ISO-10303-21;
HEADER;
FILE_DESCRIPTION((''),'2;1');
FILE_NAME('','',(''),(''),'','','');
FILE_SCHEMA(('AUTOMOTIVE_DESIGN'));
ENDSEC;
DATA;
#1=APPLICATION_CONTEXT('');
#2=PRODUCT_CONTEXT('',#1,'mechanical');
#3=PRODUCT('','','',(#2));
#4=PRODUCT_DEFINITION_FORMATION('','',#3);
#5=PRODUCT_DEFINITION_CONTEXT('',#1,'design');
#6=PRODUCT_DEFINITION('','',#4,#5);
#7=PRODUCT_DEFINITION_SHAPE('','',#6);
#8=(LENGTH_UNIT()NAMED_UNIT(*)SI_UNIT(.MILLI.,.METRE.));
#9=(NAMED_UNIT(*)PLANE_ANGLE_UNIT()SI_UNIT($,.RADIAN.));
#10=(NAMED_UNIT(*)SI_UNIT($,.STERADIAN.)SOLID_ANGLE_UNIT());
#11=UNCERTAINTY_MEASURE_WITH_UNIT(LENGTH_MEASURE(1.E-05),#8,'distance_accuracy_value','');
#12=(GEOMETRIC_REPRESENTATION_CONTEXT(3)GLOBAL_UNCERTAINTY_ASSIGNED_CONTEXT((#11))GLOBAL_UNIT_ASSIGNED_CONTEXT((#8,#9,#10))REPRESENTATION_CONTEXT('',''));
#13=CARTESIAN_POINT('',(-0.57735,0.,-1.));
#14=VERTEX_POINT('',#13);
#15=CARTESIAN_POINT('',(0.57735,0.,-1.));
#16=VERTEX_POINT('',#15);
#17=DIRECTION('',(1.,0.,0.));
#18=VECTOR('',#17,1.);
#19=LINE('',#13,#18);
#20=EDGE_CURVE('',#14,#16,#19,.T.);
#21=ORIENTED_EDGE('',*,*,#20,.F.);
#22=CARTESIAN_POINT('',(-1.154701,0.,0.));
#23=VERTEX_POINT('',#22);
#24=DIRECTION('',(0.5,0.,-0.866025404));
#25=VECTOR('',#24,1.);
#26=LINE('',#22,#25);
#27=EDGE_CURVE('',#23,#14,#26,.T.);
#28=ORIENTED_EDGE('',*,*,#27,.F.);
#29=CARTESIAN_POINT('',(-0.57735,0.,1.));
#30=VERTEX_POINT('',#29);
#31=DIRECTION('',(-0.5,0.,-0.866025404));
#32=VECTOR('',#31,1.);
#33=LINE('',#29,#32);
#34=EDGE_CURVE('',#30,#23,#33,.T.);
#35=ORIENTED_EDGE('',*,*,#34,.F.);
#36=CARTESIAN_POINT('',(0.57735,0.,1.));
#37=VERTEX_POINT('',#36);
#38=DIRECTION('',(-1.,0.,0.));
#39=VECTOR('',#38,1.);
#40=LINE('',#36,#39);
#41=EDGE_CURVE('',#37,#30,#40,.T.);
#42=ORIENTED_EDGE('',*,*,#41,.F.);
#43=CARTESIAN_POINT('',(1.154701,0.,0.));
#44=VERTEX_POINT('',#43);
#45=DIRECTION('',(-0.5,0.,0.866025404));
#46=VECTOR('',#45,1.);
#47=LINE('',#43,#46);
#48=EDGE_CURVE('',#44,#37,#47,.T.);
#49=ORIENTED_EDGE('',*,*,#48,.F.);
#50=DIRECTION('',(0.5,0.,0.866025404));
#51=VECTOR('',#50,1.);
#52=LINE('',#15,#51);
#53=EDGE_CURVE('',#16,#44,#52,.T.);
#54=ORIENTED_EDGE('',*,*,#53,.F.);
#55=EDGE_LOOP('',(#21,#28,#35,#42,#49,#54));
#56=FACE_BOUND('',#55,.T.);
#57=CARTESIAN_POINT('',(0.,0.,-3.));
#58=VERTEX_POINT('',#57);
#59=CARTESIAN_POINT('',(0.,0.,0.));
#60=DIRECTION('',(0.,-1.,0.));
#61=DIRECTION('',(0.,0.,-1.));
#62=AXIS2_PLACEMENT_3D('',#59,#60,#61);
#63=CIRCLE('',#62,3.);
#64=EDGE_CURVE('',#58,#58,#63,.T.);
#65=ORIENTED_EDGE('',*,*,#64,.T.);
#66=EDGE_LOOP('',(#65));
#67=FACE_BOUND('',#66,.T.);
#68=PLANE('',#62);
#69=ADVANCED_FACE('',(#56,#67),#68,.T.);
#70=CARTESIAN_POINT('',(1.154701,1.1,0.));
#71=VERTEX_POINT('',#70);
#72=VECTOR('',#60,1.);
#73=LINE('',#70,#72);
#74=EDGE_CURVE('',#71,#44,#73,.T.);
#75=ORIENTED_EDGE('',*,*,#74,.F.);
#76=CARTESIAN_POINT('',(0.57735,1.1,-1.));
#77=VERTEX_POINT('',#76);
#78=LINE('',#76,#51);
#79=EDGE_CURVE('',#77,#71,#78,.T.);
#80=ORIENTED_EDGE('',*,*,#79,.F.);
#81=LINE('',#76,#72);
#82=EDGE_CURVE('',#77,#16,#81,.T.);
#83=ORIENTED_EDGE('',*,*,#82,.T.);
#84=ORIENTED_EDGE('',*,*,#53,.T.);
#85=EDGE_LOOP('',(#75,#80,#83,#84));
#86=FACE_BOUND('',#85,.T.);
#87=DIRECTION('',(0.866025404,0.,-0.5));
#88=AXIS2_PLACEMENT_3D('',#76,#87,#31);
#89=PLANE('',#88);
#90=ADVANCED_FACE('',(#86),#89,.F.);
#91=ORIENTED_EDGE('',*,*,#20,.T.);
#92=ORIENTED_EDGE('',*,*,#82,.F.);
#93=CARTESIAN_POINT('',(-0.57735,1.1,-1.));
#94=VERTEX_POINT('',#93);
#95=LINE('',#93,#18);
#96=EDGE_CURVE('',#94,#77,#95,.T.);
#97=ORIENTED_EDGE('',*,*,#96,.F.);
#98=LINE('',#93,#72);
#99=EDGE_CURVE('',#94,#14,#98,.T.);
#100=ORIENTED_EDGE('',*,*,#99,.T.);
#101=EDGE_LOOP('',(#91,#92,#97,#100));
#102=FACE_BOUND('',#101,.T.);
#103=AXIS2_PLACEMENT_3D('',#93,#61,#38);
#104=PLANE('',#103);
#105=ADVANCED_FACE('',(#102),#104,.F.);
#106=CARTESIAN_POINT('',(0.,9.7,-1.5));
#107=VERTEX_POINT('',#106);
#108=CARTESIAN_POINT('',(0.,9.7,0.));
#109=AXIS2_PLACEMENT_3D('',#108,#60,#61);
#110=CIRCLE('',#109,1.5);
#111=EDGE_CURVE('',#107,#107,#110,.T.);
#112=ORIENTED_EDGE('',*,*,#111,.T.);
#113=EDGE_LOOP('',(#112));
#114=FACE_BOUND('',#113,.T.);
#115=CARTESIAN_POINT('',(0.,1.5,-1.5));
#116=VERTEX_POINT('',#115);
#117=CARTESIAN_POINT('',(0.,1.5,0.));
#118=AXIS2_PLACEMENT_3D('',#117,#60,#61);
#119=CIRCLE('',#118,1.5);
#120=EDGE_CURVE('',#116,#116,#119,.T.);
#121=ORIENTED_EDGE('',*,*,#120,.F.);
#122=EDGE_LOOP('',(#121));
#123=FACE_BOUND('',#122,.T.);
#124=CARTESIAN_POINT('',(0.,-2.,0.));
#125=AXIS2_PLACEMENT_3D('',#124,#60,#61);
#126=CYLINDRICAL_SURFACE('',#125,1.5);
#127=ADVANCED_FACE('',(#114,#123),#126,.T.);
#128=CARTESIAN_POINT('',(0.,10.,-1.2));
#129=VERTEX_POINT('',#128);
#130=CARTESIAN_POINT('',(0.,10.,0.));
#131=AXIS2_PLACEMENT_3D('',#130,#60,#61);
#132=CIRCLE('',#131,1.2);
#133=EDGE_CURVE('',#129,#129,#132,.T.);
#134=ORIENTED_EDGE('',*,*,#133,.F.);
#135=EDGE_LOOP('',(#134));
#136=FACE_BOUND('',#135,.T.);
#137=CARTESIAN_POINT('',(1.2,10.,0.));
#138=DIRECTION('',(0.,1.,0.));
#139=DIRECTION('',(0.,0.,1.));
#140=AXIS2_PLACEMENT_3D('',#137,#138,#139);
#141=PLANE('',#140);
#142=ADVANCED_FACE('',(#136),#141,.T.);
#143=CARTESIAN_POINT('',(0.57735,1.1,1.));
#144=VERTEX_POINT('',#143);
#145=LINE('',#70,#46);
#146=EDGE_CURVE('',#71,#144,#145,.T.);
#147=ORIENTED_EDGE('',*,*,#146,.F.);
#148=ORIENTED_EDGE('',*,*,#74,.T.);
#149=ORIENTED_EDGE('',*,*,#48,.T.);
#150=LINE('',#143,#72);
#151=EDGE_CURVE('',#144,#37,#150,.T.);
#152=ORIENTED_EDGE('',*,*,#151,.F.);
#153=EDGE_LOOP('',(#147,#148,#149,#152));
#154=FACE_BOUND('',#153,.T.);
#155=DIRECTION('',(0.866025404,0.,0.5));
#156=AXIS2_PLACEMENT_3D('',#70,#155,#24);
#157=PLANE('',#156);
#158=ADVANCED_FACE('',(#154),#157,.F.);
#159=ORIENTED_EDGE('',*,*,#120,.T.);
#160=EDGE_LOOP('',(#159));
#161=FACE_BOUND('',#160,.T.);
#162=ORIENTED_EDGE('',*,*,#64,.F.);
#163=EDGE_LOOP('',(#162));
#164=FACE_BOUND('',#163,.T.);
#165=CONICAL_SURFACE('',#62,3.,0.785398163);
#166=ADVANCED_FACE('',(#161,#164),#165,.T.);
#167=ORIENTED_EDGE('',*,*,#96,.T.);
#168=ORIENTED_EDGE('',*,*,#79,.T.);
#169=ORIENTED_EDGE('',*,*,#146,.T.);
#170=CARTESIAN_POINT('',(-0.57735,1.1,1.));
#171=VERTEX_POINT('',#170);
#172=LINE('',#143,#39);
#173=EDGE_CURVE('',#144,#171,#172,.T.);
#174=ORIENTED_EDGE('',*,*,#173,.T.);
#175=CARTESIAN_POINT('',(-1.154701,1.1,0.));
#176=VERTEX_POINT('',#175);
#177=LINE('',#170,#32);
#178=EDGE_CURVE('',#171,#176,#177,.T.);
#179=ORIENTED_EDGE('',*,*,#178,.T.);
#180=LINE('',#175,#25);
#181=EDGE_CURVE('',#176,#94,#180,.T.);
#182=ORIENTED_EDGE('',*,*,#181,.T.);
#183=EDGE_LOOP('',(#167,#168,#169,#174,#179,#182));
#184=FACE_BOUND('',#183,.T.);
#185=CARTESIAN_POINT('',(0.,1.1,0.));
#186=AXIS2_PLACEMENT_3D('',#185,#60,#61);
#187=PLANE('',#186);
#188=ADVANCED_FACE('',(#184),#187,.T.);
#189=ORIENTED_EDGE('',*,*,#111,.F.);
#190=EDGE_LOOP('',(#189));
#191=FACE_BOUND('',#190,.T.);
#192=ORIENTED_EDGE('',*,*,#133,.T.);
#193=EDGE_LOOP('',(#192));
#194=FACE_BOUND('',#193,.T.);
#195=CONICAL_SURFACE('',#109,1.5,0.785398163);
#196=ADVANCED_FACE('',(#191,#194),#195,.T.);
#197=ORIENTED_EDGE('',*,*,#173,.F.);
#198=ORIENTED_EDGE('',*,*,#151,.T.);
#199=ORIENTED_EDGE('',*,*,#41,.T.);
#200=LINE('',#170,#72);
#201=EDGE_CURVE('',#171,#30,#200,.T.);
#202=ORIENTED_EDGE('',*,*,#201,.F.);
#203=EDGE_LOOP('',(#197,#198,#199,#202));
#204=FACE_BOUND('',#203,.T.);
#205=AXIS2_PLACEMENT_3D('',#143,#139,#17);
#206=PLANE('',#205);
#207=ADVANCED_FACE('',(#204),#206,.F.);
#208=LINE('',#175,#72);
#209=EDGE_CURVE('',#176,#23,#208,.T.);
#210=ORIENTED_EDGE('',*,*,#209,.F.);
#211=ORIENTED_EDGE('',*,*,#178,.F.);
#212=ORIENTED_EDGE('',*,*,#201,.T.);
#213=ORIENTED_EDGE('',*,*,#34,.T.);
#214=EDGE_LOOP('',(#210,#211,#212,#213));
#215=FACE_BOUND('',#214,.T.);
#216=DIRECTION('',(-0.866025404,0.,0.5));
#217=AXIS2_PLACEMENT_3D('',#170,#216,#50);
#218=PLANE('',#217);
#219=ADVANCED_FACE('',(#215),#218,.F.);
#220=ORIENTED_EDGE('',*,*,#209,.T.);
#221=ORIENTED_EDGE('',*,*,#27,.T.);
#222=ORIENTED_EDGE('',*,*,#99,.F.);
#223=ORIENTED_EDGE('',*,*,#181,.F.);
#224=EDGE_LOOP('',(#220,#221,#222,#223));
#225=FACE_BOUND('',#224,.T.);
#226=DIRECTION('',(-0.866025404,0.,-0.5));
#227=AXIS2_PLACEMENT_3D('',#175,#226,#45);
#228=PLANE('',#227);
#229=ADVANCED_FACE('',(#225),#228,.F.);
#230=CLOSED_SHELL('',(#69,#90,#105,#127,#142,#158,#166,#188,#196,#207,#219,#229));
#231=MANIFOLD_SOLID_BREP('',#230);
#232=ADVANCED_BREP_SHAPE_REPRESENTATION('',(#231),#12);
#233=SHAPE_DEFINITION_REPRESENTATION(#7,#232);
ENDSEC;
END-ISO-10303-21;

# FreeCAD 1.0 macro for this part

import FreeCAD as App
import Part
import Sketcher
from FreeCAD import Vector
Q = App.Units.Quantity


def add_polygon(sketch, points):
    """Adds a closed chain of lines whose ends are joined by coincident constraints."""
    first, n = sketch.GeometryCount, len(points)
    for a, b in zip(points, points[1:] + points[:1]):
        sketch.addGeometry(Part.LineSegment(App.Vector(*a, 0), App.Vector(*b, 0)), False)
    for i in range(n):
        sketch.addConstraint(Sketcher.Constraint("Coincident", first + i, 2, first + (i + 1) % n, 1))

doc = App.newDocument("Part")
body = doc.addObject("PartDesign::Body", "Body")

# Sketch on XY plane
sketch1 = body.newObject("Sketcher::SketchObject", "Sketch")
sketch1.AttachmentSupport = (doc.getObject("XY_Plane"), [""])
sketch1.MapMode = "FlatFace"
add_polygon(sketch1, [(0, 0), (3, 0), (1.5, 1.5), (1.5, 9.7), (1.2, 10), (0, 10)])  # lines 0-5
sketch1.addConstraint([
    Sketcher.Constraint("Horizontal", 0),
    Sketcher.Constraint("Vertical", 2),
    Sketcher.Constraint("Horizontal", 4),
    Sketcher.Constraint("Vertical", 5),
    Sketcher.Constraint("Coincident", 5, 2, -1, 1),
    Sketcher.Constraint("Parallel", 1, 3),
    Sketcher.Constraint("DistanceX", 0, 1, 0, 2, 3.0),
    Sketcher.Constraint("DistanceY", 5, 2, 5, 1, 10.0),
    Sketcher.Constraint("Angle", 1, Q("135 deg")),
    Sketcher.Constraint("DistanceX", 4, 2, 4, 1, 1.2),
    Sketcher.Constraint("DistanceX", -1, 1, 1, 2, 1.5),
])
revolution = body.newObject("PartDesign::Revolution", "Revolution")
revolution.Profile = sketch1
revolution.ReferenceAxis = (sketch1, ["V_Axis"])
revolution.Angle = 360

# Sketch on XZ plane
sketch2 = body.newObject("Sketcher::SketchObject", "Sketch001")
sketch2.AttachmentSupport = (doc.getObject("XZ_Plane"), [""])
sketch2.MapMode = "FlatFace"
add_polygon(sketch2, [(1.2, 0), (0.6, 1), (-0.6, 1), (-1.2, 0), (-0.6, -1), (0.6, -1)])  # lines 0-5
sketch2.addConstraint([
    Sketcher.Constraint("Horizontal", 1),
    Sketcher.Constraint("Horizontal", 4),
    Sketcher.Constraint("Symmetric", 0, 2, 3, 2, -1, 1),
    Sketcher.Constraint("Symmetric", 2, 2, 5, 2, -1, 1),
    Sketcher.Constraint("PointOnObject", 2, 2, -1),
    Sketcher.Constraint("Parallel", 2, 5),
    Sketcher.Constraint("Vertical", 1, 2, 3, 2),
    Sketcher.Constraint("Angle", 0, Q("120 deg")),
    Sketcher.Constraint("DistanceY", -1, 1, 0, 2, 1.0),
    Sketcher.Constraint("DistanceX", 1, 2, 1, 1, 1.154701),
])
pocket1 = body.newObject("PartDesign::Pocket", "Pocket")
pocket1.Profile = sketch2
pocket1.Length = 1.1

doc.recompute()
